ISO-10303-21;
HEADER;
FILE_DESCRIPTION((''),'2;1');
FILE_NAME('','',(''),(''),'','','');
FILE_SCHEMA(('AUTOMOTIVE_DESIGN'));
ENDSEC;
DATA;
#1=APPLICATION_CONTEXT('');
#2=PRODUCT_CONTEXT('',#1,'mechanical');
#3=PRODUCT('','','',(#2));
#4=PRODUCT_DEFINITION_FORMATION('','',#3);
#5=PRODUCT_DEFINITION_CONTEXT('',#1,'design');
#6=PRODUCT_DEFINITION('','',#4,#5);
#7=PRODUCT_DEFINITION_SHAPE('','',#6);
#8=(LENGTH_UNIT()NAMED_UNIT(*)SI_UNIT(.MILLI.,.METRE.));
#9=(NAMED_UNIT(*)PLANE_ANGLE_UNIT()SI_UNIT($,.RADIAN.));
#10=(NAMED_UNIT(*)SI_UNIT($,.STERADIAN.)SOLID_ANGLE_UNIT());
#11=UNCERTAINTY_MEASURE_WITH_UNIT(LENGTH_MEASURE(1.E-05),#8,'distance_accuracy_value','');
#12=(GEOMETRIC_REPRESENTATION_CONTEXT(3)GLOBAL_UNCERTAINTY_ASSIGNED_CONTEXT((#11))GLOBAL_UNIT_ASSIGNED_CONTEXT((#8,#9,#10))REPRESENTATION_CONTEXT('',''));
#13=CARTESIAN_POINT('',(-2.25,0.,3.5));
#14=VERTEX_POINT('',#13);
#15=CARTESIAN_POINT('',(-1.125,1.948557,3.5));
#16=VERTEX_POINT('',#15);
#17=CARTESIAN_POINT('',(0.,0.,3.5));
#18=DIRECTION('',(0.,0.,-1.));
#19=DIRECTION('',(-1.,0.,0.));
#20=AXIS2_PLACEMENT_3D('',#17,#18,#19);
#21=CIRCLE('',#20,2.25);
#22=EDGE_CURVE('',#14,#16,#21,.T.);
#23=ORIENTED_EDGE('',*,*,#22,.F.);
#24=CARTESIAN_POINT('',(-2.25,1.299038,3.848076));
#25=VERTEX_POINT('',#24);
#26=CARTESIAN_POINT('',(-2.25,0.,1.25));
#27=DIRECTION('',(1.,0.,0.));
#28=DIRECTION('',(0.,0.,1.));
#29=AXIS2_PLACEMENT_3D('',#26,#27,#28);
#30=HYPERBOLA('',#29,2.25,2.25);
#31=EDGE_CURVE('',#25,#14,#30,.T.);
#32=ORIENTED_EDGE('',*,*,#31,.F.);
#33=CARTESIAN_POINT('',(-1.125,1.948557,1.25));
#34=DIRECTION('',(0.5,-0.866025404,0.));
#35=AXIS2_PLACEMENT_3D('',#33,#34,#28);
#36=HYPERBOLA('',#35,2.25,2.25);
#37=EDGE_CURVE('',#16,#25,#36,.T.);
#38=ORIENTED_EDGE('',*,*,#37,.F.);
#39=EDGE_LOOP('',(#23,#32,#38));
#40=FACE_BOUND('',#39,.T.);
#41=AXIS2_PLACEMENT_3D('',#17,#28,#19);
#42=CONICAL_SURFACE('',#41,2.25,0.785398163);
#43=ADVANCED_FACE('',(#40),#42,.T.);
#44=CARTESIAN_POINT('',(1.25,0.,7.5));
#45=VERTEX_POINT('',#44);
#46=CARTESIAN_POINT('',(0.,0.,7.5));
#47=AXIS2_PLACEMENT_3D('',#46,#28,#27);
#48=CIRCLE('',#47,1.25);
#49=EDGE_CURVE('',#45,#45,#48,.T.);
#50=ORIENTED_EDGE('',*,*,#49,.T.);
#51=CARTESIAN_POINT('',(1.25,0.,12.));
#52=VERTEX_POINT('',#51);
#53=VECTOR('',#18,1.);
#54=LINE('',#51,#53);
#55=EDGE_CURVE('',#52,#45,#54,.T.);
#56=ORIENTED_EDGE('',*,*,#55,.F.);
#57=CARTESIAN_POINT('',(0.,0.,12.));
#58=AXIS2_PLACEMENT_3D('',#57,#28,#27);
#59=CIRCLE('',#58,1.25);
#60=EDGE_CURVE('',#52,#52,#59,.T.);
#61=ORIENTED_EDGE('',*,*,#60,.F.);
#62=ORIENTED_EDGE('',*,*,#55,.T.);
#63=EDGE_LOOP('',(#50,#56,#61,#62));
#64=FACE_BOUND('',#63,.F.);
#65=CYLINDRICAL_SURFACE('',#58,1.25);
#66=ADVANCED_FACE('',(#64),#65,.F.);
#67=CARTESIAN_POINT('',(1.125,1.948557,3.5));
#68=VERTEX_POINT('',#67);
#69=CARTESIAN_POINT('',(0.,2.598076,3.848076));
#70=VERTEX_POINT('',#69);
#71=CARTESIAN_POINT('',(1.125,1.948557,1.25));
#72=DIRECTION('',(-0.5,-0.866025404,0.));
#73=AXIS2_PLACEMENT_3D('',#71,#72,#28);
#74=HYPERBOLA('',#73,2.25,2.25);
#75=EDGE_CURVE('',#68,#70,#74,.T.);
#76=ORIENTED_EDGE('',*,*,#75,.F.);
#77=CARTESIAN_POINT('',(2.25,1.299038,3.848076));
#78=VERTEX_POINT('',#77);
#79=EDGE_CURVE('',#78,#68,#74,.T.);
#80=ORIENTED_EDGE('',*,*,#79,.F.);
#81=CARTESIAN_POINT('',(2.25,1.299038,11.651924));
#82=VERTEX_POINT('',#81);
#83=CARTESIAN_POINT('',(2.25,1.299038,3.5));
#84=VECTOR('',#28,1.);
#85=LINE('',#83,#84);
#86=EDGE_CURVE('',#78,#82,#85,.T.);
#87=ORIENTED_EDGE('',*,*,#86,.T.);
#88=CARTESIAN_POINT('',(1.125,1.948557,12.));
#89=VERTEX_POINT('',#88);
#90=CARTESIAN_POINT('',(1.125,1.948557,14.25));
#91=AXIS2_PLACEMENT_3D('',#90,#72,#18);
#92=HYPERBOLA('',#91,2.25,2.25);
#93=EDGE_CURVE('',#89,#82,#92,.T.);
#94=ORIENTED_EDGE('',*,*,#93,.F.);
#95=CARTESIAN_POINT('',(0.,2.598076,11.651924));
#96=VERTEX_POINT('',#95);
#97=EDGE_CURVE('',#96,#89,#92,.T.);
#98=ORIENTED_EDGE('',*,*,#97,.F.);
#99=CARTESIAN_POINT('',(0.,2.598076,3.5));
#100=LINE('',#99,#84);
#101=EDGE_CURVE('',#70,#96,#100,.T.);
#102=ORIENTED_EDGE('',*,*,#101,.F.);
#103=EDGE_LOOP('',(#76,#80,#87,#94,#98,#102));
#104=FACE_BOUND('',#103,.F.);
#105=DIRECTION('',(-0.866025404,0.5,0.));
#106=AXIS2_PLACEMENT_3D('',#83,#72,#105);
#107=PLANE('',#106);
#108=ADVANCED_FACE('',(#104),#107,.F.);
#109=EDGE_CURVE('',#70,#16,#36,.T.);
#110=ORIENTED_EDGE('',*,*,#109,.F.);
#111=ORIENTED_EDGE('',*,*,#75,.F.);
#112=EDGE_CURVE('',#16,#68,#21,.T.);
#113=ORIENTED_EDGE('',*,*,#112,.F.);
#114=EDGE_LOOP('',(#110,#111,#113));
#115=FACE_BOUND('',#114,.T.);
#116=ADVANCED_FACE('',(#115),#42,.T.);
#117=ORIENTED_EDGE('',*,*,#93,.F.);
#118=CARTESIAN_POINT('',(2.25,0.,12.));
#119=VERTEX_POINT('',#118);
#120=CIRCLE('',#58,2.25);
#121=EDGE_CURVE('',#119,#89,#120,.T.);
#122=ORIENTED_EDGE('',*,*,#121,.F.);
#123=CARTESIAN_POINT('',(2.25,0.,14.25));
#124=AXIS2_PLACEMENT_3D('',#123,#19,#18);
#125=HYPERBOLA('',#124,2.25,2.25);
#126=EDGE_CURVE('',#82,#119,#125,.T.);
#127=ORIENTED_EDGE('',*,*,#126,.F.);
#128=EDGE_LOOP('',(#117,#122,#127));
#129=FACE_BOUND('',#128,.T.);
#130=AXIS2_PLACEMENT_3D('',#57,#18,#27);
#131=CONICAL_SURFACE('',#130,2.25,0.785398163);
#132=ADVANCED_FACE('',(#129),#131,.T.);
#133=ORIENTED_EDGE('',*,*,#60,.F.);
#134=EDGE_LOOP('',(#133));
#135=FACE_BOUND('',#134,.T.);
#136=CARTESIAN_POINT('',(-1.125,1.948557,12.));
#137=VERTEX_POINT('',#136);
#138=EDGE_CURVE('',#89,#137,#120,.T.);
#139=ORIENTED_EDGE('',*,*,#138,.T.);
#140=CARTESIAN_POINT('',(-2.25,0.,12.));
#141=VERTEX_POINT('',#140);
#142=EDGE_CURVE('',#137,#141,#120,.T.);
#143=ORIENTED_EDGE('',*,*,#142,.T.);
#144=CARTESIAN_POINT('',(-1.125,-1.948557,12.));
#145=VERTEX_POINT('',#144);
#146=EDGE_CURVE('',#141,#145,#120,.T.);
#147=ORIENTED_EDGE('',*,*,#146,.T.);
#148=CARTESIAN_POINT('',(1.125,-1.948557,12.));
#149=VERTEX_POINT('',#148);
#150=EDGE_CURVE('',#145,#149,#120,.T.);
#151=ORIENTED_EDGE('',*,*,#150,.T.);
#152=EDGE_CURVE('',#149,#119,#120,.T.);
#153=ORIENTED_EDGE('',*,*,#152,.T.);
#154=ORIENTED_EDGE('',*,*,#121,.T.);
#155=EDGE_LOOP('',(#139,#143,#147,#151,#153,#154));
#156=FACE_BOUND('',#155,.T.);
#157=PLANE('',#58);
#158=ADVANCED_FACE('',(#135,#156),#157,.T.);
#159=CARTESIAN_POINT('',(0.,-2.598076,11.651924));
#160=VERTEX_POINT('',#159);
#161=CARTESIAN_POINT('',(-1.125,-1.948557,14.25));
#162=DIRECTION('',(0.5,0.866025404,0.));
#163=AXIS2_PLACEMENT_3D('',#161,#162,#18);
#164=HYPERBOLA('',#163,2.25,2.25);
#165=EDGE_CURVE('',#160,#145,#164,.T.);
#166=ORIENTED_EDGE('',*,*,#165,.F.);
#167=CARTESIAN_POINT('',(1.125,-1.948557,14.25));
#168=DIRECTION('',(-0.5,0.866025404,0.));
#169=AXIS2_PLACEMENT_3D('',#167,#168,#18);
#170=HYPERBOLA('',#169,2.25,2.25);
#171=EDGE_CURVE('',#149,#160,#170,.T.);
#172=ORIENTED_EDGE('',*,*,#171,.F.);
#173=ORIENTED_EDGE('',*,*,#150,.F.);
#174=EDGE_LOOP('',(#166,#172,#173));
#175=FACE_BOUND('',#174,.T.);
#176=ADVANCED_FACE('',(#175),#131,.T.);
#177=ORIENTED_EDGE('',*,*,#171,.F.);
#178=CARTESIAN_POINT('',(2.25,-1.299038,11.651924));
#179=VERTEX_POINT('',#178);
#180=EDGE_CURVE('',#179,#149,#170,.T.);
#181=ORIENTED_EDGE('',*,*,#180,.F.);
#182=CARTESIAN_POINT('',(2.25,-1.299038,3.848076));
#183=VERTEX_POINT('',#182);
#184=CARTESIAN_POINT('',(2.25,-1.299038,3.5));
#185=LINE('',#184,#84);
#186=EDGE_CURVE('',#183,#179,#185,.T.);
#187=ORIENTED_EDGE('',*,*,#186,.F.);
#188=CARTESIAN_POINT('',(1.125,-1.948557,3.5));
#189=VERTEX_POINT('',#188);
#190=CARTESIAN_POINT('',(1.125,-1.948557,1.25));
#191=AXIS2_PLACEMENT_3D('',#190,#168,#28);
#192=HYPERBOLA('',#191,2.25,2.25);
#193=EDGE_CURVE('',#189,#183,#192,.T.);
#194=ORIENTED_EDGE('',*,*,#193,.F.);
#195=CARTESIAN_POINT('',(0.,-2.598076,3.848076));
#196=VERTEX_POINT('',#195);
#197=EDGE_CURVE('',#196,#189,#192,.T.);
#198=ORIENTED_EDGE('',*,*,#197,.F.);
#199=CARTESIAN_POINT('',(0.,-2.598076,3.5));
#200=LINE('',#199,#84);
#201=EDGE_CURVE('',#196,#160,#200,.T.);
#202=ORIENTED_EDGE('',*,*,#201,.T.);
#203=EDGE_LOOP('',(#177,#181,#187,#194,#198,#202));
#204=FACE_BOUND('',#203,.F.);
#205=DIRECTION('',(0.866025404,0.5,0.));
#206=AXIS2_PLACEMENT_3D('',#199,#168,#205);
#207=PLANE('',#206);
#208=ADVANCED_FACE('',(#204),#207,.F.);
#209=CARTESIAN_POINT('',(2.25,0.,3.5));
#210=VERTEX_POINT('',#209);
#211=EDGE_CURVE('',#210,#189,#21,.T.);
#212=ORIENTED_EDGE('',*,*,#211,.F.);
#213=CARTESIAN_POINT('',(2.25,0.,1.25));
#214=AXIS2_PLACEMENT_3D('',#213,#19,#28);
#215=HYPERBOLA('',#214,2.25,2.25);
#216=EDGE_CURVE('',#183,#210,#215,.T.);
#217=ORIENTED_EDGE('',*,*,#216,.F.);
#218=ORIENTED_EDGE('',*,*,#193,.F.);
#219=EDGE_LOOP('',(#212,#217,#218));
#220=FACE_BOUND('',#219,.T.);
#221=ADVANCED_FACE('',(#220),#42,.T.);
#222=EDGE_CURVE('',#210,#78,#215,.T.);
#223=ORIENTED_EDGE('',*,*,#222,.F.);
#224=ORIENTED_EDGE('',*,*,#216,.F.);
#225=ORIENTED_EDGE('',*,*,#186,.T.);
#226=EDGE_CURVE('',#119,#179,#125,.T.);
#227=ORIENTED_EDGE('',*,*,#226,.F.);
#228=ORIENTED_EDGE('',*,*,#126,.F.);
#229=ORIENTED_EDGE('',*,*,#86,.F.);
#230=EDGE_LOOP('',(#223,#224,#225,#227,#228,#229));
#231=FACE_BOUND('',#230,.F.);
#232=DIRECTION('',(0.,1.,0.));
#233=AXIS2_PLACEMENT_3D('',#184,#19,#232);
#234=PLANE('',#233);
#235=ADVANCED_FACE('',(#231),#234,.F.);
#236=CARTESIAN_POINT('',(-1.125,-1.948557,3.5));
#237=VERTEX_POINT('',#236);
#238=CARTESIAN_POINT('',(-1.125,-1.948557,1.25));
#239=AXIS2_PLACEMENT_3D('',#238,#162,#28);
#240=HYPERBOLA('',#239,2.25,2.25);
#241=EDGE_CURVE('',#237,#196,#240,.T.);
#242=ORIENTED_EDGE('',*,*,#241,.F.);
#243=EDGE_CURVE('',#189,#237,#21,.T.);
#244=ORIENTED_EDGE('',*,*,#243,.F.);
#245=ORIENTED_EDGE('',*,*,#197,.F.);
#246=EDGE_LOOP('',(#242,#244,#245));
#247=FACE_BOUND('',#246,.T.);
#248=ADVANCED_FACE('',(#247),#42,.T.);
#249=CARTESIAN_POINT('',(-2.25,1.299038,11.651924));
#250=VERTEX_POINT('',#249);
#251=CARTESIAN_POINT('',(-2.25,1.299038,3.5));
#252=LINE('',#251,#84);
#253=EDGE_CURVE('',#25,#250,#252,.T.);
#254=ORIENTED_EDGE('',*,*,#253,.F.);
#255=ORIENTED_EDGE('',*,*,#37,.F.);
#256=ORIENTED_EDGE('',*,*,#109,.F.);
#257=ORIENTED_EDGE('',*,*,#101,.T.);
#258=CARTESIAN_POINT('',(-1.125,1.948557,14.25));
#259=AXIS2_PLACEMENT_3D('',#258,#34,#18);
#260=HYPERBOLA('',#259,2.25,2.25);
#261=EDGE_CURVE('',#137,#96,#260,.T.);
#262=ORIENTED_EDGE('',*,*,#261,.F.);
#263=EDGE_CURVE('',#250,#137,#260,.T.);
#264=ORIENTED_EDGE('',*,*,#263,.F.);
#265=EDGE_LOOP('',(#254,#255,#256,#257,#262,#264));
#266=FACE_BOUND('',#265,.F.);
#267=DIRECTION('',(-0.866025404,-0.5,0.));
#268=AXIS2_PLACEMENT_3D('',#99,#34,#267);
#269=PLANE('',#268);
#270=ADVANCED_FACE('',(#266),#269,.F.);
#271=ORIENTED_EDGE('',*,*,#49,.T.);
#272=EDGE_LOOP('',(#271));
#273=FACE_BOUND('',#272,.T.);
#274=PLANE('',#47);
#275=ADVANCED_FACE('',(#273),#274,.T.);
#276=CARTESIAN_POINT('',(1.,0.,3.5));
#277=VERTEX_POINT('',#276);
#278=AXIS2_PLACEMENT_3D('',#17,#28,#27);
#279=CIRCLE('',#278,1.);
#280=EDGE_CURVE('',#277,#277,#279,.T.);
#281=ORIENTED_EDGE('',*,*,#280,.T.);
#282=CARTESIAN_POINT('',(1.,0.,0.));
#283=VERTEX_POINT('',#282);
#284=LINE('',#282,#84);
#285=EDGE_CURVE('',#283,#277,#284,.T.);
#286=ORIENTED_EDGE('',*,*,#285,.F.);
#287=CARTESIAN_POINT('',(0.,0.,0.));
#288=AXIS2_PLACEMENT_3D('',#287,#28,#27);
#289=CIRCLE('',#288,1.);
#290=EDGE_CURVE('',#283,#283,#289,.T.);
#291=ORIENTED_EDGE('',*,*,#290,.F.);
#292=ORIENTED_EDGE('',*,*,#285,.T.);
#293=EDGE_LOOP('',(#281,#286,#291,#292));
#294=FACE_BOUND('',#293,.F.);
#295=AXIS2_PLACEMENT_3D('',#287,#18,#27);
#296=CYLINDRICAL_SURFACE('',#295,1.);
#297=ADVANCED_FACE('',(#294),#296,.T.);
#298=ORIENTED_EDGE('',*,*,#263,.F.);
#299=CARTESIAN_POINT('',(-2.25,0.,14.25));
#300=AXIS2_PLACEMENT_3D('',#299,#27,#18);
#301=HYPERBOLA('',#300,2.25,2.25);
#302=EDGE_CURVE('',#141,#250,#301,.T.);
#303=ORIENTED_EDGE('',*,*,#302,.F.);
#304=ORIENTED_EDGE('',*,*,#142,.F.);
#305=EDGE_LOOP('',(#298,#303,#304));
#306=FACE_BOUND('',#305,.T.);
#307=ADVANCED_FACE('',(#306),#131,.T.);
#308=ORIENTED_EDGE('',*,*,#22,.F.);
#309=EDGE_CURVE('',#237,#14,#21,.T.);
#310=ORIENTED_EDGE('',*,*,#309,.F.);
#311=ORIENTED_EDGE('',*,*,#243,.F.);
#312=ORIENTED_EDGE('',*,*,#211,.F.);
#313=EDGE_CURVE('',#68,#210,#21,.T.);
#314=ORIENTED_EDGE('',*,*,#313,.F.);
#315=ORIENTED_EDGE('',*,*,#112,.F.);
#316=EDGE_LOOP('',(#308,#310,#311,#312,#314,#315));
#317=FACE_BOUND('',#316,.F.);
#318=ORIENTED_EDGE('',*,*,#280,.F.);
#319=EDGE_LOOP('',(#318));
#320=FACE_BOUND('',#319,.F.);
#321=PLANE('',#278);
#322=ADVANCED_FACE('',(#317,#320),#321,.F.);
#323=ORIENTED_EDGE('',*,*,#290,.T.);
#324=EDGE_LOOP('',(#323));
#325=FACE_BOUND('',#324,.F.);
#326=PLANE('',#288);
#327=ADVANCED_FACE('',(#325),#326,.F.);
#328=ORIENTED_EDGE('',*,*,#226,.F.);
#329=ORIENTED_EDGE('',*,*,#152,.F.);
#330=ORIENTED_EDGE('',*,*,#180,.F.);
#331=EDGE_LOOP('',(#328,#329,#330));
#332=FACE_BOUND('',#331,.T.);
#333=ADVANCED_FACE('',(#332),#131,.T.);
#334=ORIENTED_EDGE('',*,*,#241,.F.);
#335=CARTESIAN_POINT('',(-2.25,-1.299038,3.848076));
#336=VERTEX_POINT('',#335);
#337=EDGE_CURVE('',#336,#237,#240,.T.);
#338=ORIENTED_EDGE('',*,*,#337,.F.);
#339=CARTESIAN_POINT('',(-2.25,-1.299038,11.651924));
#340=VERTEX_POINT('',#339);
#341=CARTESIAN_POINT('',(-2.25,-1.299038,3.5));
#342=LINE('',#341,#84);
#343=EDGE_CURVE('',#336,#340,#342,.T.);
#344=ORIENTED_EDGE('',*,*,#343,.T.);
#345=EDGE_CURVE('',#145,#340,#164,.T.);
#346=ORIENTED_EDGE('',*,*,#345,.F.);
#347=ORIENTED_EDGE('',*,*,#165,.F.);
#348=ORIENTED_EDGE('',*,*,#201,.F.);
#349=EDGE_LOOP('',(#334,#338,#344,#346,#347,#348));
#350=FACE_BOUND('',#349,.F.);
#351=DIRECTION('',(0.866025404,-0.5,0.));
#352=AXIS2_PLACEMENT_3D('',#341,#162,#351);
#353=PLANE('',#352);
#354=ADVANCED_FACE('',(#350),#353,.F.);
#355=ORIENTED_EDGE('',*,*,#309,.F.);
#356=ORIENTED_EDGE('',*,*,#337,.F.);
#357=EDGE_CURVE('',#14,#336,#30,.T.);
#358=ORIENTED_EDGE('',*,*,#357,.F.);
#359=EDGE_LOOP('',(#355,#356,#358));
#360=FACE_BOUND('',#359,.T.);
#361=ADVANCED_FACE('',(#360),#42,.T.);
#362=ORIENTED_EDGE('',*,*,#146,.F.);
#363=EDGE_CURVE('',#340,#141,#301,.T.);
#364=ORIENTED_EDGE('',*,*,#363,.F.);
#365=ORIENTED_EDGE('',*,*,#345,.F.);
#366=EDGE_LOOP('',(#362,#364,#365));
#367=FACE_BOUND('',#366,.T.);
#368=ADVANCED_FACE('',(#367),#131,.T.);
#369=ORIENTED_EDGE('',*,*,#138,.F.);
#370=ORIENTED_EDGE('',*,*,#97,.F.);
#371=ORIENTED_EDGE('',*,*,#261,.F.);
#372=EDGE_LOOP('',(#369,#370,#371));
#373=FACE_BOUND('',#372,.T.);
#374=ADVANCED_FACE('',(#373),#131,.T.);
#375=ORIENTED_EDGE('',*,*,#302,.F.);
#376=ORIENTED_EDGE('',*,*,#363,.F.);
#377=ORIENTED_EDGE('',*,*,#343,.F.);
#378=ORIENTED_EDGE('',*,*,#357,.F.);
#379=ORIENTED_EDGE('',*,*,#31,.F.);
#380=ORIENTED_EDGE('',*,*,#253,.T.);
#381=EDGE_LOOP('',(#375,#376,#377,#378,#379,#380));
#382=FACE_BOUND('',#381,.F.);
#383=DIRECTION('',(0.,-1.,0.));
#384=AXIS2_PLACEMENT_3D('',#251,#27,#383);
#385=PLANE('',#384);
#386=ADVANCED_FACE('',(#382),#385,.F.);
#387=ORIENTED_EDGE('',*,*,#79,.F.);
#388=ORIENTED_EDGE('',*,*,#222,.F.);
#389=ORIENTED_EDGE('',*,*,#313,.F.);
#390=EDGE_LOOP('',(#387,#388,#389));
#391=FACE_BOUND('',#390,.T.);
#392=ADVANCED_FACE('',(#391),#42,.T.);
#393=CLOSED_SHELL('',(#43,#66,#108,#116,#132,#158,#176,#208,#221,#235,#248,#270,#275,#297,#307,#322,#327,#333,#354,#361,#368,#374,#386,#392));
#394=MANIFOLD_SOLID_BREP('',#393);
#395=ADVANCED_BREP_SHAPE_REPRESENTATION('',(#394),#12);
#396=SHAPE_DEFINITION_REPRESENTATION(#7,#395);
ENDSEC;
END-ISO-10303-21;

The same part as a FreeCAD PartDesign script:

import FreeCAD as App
import Part
import Sketcher
from FreeCAD import Vector
Q = App.Units.Quantity


def faces_at(feature, points):
    """Names of the faces that lie closest to the given points."""
    faces = feature.Shape.Faces
    near = lambda p: min(range(len(faces)), key=lambda i: faces[i].distToShape(Part.Vertex(*p))[0])
    return sorted({f"Face{near(p) + 1}" for p in points})


def add_polygon(sketch, points):
    """Adds a closed chain of lines whose ends are joined by coincident constraints."""
    first, n = sketch.GeometryCount, len(points)
    for a, b in zip(points, points[1:] + points[:1]):
        sketch.addGeometry(Part.LineSegment(App.Vector(*a, 0), App.Vector(*b, 0)), False)
    for i in range(n):
        sketch.addConstraint(Sketcher.Constraint("Coincident", first + i, 2, first + (i + 1) % n, 1))

doc = App.newDocument("Part")
params = doc.addObject("Spreadsheet::Sheet", "Params")
for row, (alias, value) in enumerate([
    ("sketch1_diameter", "2 mm"),
    ("pad1_length", "3.5 mm"),
    ("pad2_length", "8.5 mm"),
    ("sketch3_diameter", "2.5 mm"),
    ("pocket1_length", "4.5 mm"),
    ("sketch4_diameter", "4.5 mm"),
    ("sketch4_width", "36.23 mm"),
    ("pad3_length", "13.482488 mm"),
    ("draft_angle", "45 deg"),
    ("sketch5_diameter", "4.5 mm"),
    ("pad4_length", "10.16856 mm"),
    ("draft2_angle", "45 deg"),
], start=1):
    params.set(f"A{row}", alias)
    params.set(f"B{row}", "=" + value)
    params.setAlias(f"B{row}", alias)

body = doc.addObject("PartDesign::Body", "Body")

sketch1 = body.newObject("Sketcher::SketchObject", "Sketch")
sketch1.AttachmentSupport = (doc.getObject("XY_Plane"), [""])
sketch1.MapMode = "FlatFace"
sketch1.addGeometry(Part.Circle(Vector(0, 0, 0), Vector(0, 0, 1), 1), False)
sketch1.addConstraint([
    Sketcher.Constraint("Coincident", 0, 3, -1, 1),
    Sketcher.Constraint("Diameter", 0, Q("2 mm")),
])
sketch1.setExpression("Constraints[1]", "Params.sketch1_diameter")
pad1 = body.newObject("PartDesign::Pad", "Pad")
pad1.Profile = sketch1
pad1.setExpression("Length", "Params.pad1_length")

sketch2 = body.newObject("Sketcher::SketchObject", "Sketch001")
sketch2.AttachmentSupport = (doc.getObject("XY_Plane"), [""])
sketch2.MapMode = "FlatFace"
sketch2.AttachmentOffset = App.Placement(Vector(0, 0, 3.5), App.Rotation())
add_polygon(sketch2, [(0, 2.6), (-2.2, 1.3), (-2.2, -1.3), (0, -2.6), (2.2, -1.3), (2.2, 1.3)])
sketch2.addConstraint([
    Sketcher.Constraint("Vertical", 1),
    Sketcher.Constraint("Vertical", 4),
    Sketcher.Constraint("Symmetric", 0, 2, 3, 2, -1, 1),
    Sketcher.Constraint("Symmetric", 2, 2, 5, 2, -1, 1),
    Sketcher.Constraint("PointOnObject", 2, 2, -2),
    Sketcher.Constraint("Parallel", 2, 5),
    Sketcher.Constraint("Horizontal", 1, 2, 3, 2),
    Sketcher.Constraint("Angle", 0, Q("-150 deg")),
    Sketcher.Constraint("DistanceX", 1, 2, 3, 2, Q("4.5 mm")),
    Sketcher.Constraint("DistanceY", 1, 2, 1, 1, Q("2.598076 mm")),
])
pad2 = body.newObject("PartDesign::Pad", "Pad001")
pad2.Profile = sketch2
pad2.setExpression("Length", "Params.pad2_length")

sketch3 = body.newObject("Sketcher::SketchObject", "Sketch002")
sketch3.AttachmentSupport = (doc.getObject("XY_Plane"), [""])
sketch3.MapMode = "FlatFace"
sketch3.AttachmentOffset = App.Placement(Vector(0, 0, 12), App.Rotation())
sketch3.addGeometry(Part.Circle(Vector(0, 0, 0), Vector(0, 0, 1), 1.2), False)
sketch3.addConstraint([
    Sketcher.Constraint("Coincident", 0, 3, -1, 1),
    Sketcher.Constraint("Diameter", 0, Q("2.5 mm")),
])
sketch3.setExpression("Constraints[1]", "Params.sketch3_diameter")
pocket1 = body.newObject("PartDesign::Pocket", "Pocket")
pocket1.Profile = sketch3
pocket1.setExpression("Length", "Params.pocket1_length")
body2 = doc.addObject("PartDesign::Body", "Body001")

sketch4 = body2.newObject("Sketcher::SketchObject", "Sketch003")
sketch4.AttachmentSupport = (doc.getObject("XY_Plane001"), [""])
sketch4.MapMode = "FlatFace"
sketch4.AttachmentOffset = App.Placement(Vector(0, 0, 12), App.Rotation())
add_polygon(sketch4, [(-18.1, 18.5), (-18.1, -18.5), (18.1, -18.5), (18.1, 18.5)])
sketch4.addGeometry(Part.Circle(Vector(0, 0, 0), Vector(0, 0, 1), 2.2), False)
sketch4.addConstraint([
    Sketcher.Constraint("Vertical", 0),
    Sketcher.Constraint("Horizontal", 1),
    Sketcher.Constraint("Vertical", 2),
    Sketcher.Constraint("Horizontal", 3),
    Sketcher.Constraint("Coincident", 4, 3, -1, 1),
    Sketcher.Constraint("Symmetric", 0, 2, 2, 2, -1, 1),
    Sketcher.Constraint("Diameter", 4, Q("4.5 mm")),
    Sketcher.Constraint("DistanceX", 1, 1, 1, 2, Q("36.23 mm")),
    Sketcher.Constraint("DistanceY", 0, 2, 0, 1, Q("36.926 mm")),
])
sketch4.setExpression("Constraints[10]", "Params.sketch4_diameter")
sketch4.setExpression("Constraints[11]", "Params.sketch4_width")
pad3 = body2.newObject("PartDesign::Pad", "Pad002")
pad3.Profile = sketch4
pad3.setExpression("Length", "Params.pad3_length")
pad3.Reversed = True
doc.recompute()

datumplane = body2.newObject("PartDesign::Plane", "DatumPlane")
datumplane.AttachmentSupport = (doc.getObject("XY_Plane001"), [""])
datumplane.MapMode = "FlatFace"
datumplane.AttachmentOffset = App.Placement(Vector(0, 0, 12), App.Rotation())
draft = body2.newObject("PartDesign::Draft", "Draft")
draft.Base = (pad3, faces_at(pad3, [
    (0, -18.463, 5.259),
    (18.115, 0, 5.259),
    (0, 18.463, 5.259),
    (-18.115, 0, 5.259),
    (-2.25, 0, 5.259),
]))
draft.NeutralPlane = (datumplane, [""])
draft.setExpression("Angle", "Params.draft_angle")
draft.Reversed = True
doc.recompute()

boolean = body.newObject("PartDesign::Boolean", "Boolean")
boolean.Type = "Cut"
boolean.addObjects([body2])
body3 = doc.addObject("PartDesign::Body", "Body002")

sketch5 = body3.newObject("Sketcher::SketchObject", "Sketch004")
sketch5.AttachmentSupport = (doc.getObject("XY_Plane002"), [""])
sketch5.MapMode = "FlatFace"
sketch5.AttachmentOffset = App.Placement(Vector(0, 0, 3.5), App.Rotation())
add_polygon(sketch5, [(14.8, 15.1), (14.8, -15.1), (-14.8, -15.1), (-14.8, 15.1)])
sketch5.addGeometry(Part.Circle(Vector(0, 0, 0), Vector(0, 0, 1), 2.2), False)
sketch5.addConstraint([
    Sketcher.Constraint("Vertical", 0),
    Sketcher.Constraint("Horizontal", 1),
    Sketcher.Constraint("Vertical", 2),
    Sketcher.Constraint("Horizontal", 3),
    Sketcher.Constraint("Coincident", 4, 3, -1, 1),
    Sketcher.Constraint("Symmetric", 0, 2, 2, 2, -1, 1),
    Sketcher.Constraint("Diameter", 4, Q("4.5 mm")),
    Sketcher.Constraint("DistanceX", 1, 2, 1, 1, Q("29.602 mm")),
    Sketcher.Constraint("DistanceY", 0, 2, 0, 1, Q("30.298 mm")),
])
sketch5.setExpression("Constraints[10]", "Params.sketch5_diameter")
pad4 = body3.newObject("PartDesign::Pad", "Pad003")
pad4.Profile = sketch5
pad4.setExpression("Length", "Params.pad4_length")
doc.recompute()

datumplane2 = body3.newObject("PartDesign::Plane", "DatumPlane001")
datumplane2.AttachmentSupport = (doc.getObject("XY_Plane002"), [""])
datumplane2.MapMode = "FlatFace"
datumplane2.AttachmentOffset = App.Placement(Vector(0, 0, 3.5), App.Rotation())
draft2 = body3.newObject("PartDesign::Draft", "Draft001")
draft2.Base = (pad4, faces_at(pad4, [
    (0, -15.149, 8.584),
    (-14.801, 0, 8.584),
    (0, 15.149, 8.584),
    (14.801, 0, 8.584),
    (2.25, 0, 8.584),
]))
draft2.NeutralPlane = (datumplane2, [""])
draft2.setExpression("Angle", "Params.draft2_angle")
draft2.Reversed = False
doc.recompute()

boolean2 = body.newObject("PartDesign::Boolean", "Boolean001")
boolean2.Type = "Cut"
boolean2.addObjects([body3])

doc.recompute()
